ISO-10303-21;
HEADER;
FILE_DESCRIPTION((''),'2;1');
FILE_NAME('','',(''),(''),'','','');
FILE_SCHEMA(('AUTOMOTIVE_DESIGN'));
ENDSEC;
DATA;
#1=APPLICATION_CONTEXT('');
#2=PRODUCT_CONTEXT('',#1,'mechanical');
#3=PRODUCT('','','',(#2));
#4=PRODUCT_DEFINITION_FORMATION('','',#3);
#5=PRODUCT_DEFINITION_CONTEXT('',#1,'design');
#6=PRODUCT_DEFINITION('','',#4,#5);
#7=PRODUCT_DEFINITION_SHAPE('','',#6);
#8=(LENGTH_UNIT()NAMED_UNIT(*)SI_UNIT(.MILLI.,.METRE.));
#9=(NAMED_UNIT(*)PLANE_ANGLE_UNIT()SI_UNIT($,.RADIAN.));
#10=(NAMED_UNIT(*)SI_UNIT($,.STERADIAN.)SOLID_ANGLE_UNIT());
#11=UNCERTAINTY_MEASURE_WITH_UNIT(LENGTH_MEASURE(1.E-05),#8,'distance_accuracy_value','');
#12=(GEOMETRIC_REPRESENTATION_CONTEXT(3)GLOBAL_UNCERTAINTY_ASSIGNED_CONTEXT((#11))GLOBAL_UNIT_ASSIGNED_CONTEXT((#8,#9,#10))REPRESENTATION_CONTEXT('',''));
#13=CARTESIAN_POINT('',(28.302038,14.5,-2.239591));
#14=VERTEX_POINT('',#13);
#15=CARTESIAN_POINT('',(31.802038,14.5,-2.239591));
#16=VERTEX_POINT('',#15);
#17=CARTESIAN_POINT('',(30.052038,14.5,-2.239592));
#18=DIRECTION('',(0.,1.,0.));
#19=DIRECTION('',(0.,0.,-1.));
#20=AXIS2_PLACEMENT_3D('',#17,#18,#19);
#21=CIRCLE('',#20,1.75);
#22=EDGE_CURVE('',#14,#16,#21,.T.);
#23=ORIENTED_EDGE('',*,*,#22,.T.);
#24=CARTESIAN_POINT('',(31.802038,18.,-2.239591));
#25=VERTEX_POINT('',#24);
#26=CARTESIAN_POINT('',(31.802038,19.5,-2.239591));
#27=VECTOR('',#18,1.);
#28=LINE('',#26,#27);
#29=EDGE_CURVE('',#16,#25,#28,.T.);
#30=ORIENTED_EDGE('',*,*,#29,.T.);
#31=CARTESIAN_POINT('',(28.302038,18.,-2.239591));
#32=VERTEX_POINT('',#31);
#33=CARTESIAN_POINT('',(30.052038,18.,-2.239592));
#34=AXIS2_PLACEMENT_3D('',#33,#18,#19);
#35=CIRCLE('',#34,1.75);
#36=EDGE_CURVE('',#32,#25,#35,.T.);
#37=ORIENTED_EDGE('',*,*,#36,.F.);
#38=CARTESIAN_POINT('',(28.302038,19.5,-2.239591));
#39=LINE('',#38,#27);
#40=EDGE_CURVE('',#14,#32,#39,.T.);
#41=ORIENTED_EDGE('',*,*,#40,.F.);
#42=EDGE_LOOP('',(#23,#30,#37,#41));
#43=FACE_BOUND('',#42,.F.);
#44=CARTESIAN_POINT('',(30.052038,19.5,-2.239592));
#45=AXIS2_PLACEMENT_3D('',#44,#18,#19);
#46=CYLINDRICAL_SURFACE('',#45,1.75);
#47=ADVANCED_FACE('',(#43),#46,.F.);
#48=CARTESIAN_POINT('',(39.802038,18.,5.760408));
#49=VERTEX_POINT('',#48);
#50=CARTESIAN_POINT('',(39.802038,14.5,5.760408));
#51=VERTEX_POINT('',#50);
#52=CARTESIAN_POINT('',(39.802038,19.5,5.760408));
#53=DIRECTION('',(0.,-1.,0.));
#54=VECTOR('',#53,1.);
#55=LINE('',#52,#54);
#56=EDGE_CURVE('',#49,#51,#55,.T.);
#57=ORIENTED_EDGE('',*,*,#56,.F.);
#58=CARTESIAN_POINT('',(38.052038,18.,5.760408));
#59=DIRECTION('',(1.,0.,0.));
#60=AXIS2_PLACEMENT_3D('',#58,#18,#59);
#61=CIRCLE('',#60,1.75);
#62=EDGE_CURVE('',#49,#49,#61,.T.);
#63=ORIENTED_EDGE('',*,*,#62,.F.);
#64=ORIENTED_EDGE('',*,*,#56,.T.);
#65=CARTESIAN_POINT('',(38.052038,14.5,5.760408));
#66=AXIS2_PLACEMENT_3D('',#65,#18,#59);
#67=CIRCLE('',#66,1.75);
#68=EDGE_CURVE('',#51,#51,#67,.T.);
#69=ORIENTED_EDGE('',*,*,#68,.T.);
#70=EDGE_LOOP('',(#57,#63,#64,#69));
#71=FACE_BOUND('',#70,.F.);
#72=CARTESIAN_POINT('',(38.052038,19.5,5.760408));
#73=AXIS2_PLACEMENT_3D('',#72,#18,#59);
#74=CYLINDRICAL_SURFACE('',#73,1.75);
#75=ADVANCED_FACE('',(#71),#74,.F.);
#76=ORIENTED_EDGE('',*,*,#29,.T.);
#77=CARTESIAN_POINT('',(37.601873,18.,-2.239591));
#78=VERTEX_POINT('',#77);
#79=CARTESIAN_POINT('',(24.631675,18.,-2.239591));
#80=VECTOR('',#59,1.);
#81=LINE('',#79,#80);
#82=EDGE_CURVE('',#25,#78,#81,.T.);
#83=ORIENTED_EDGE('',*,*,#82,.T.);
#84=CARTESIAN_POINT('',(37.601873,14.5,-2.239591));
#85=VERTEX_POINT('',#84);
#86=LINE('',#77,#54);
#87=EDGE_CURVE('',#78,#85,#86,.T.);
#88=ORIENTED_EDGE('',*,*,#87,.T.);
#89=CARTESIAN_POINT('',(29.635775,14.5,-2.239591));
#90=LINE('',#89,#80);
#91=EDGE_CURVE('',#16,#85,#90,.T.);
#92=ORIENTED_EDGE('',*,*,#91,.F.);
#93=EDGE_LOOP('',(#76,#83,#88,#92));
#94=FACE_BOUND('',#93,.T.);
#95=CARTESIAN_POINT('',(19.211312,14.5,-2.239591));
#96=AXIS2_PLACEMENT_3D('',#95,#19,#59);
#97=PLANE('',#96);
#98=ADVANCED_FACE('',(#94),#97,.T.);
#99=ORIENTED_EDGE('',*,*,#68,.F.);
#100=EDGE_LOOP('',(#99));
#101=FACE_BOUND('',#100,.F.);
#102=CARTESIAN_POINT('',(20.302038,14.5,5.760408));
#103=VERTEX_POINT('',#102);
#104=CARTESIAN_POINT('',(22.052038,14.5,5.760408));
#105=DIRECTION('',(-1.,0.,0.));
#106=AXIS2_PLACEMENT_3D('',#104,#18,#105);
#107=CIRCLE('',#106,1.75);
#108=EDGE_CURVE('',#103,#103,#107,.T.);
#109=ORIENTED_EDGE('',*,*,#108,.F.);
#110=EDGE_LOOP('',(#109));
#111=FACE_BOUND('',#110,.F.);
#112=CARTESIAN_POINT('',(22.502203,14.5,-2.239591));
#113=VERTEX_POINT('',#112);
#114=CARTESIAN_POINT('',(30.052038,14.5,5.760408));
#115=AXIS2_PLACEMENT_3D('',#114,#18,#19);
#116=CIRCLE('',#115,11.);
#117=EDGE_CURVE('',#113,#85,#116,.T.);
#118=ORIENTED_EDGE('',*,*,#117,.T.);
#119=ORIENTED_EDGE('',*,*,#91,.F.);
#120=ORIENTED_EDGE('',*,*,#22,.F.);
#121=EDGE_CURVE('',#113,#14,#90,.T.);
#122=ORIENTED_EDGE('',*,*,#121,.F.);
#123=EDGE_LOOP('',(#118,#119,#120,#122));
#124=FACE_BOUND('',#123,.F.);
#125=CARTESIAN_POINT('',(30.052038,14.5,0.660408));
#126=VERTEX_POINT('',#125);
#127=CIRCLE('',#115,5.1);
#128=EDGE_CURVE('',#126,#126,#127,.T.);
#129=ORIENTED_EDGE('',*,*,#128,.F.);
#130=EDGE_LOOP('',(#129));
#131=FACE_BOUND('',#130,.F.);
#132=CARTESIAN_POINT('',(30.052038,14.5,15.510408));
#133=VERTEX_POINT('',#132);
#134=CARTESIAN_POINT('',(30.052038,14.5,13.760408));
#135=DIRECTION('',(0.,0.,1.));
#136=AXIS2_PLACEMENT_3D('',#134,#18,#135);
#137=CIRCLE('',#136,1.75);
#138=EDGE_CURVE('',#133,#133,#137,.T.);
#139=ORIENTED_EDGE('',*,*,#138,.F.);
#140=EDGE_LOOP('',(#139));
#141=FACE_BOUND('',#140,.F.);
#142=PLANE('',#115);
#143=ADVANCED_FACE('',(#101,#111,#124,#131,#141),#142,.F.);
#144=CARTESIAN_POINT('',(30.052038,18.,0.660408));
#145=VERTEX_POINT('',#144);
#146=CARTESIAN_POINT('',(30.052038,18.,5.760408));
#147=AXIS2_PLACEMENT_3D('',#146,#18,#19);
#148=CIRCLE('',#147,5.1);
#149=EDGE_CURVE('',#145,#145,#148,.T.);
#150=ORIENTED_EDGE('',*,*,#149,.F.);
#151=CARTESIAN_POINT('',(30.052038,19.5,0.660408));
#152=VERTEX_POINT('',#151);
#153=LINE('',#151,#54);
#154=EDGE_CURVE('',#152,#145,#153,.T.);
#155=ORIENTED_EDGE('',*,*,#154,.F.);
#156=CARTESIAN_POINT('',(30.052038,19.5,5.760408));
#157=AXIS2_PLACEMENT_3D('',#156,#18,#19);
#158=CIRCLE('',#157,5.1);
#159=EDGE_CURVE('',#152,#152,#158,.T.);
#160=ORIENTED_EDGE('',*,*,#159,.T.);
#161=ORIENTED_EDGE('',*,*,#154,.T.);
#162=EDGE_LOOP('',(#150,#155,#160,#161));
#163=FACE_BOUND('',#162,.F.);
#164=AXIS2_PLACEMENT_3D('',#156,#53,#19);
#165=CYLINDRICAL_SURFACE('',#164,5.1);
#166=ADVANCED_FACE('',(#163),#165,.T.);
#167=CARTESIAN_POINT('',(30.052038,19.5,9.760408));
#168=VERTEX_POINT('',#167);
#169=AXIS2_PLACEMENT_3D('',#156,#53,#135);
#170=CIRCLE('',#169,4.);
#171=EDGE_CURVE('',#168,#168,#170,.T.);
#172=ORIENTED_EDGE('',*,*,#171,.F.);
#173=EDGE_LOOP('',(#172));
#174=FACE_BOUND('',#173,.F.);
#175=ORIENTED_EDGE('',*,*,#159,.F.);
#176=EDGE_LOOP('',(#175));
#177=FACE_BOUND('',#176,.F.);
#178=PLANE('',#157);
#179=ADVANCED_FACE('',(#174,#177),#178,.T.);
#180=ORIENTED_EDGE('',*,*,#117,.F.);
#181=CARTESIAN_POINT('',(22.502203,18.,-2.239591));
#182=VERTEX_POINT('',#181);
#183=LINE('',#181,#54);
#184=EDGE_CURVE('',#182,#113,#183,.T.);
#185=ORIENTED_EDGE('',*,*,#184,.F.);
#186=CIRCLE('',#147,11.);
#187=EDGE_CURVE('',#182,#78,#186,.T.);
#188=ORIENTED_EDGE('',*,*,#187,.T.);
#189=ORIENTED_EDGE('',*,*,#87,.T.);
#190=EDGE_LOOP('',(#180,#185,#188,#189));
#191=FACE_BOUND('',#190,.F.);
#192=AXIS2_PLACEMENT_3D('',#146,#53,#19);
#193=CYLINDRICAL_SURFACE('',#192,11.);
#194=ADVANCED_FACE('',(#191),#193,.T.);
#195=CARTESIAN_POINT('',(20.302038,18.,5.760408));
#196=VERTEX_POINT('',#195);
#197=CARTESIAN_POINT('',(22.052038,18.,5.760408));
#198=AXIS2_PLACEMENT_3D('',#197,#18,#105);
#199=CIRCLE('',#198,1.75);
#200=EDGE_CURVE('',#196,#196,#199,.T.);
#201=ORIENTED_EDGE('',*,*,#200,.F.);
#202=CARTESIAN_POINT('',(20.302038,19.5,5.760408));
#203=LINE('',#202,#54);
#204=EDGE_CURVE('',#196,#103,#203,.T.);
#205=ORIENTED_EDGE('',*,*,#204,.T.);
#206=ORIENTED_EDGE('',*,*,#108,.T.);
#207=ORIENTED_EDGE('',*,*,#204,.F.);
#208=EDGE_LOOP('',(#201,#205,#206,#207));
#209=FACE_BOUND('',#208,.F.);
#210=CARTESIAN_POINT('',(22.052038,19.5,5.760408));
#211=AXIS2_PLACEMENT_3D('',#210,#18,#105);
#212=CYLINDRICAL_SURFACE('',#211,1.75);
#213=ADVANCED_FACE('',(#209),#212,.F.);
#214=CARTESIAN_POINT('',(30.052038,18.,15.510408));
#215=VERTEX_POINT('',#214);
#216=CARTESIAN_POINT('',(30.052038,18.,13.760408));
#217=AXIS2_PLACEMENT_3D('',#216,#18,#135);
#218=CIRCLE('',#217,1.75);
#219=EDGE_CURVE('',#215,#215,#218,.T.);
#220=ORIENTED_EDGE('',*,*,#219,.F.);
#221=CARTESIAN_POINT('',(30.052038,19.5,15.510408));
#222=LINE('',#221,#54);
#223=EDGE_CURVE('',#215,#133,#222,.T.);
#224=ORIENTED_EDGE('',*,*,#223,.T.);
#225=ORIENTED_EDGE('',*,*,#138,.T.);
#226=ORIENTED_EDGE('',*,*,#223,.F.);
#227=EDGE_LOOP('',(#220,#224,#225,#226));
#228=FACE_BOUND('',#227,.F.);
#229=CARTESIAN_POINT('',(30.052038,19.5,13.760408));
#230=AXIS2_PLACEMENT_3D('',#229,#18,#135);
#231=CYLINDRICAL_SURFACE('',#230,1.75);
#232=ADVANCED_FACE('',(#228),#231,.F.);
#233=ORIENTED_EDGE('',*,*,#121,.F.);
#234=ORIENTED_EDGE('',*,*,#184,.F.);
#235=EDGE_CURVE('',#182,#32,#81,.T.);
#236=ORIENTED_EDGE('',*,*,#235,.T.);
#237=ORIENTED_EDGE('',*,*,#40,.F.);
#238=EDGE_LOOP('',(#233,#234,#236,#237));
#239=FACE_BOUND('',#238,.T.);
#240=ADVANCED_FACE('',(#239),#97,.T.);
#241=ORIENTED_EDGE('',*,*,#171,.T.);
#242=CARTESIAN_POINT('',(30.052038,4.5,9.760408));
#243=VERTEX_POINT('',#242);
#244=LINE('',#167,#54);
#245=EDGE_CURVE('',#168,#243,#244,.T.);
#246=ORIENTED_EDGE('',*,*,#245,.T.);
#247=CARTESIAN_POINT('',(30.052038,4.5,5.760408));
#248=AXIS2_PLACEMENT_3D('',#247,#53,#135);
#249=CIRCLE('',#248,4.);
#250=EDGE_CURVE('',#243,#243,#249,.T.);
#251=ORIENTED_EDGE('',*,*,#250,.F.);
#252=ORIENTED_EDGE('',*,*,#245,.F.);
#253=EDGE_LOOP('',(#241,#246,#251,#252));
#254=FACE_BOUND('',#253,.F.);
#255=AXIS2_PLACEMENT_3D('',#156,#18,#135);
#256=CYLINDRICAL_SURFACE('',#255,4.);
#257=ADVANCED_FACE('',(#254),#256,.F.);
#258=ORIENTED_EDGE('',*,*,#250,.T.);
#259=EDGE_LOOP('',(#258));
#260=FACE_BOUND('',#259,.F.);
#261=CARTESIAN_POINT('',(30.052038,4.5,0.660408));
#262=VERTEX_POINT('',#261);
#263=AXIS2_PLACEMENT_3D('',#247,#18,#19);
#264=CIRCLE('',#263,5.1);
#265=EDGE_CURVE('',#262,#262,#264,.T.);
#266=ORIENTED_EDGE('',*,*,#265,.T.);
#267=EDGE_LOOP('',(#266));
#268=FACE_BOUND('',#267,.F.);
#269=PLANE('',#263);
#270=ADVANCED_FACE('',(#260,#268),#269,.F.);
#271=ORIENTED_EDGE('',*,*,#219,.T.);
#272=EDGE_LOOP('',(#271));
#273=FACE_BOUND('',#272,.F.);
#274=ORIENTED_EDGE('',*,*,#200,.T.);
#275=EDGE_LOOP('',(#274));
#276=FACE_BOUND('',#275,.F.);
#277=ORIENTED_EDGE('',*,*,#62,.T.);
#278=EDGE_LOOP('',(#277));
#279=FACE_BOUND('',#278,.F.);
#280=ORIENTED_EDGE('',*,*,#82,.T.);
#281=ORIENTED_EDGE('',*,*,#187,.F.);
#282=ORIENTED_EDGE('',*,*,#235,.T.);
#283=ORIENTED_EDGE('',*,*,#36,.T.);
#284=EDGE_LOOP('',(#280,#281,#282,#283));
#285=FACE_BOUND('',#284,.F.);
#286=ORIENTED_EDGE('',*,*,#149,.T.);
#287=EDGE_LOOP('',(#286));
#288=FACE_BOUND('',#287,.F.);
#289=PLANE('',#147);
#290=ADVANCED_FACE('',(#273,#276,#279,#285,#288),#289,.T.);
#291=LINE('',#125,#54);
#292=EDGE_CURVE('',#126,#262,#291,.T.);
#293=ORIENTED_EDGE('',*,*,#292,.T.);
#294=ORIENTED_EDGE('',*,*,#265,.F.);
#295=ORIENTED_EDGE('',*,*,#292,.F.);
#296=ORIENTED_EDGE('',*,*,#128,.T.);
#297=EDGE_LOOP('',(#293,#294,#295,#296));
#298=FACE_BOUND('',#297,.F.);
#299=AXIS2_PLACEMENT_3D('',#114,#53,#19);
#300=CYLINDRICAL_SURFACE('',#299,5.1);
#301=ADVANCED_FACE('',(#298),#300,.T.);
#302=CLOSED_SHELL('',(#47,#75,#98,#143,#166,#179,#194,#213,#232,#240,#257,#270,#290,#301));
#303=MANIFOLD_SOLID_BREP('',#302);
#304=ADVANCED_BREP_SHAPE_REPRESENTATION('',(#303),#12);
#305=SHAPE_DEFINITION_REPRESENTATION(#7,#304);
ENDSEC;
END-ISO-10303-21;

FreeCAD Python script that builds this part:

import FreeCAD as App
import Part
import Sketcher

V = App.Vector

doc = App.newDocument("Part")
body = doc.addObject("PartDesign::Body", "Body")

sketch1 = body.newObject("Sketcher::SketchObject", "Sketch")
sketch1.AttachmentSupport = (doc.getObject("YZ_Plane"), [""])
sketch1.MapMode = "FlatFace"
sketch1.addGeometry(Part.LineSegment(V(0, 15, 0), V(0, 0, 0)), False)
sketch1.addGeometry(Part.LineSegment(V(0, 0, 0), V(5.1, 0, 0)), False)
sketch1.addGeometry(Part.LineSegment(V(5.1, 0, 0), V(5.1, 10, 0)), False)
sketch1.addGeometry(Part.LineSegment(V(5.1, 10, 0), V(11, 10, 0)), False)
sketch1.addGeometry(Part.LineSegment(V(11, 10, 0), V(11, 13.5, 0)), False)
sketch1.addGeometry(Part.LineSegment(V(11, 13.5, 0), V(5.1, 13.5, 0)), False)
sketch1.addGeometry(Part.LineSegment(V(5.1, 13.5, 0), V(5.1, 15, 0)), False)
sketch1.addGeometry(Part.LineSegment(V(5.1, 15, 0), V(0, 15, 0)), False)
sketch1.addConstraint(Sketcher.Constraint("Coincident", 0, 2, 1, 1))
sketch1.addConstraint(Sketcher.Constraint("Coincident", 1, 2, 2, 1))
sketch1.addConstraint(Sketcher.Constraint("Coincident", 2, 2, 3, 1))
sketch1.addConstraint(Sketcher.Constraint("Coincident", 3, 2, 4, 1))
sketch1.addConstraint(Sketcher.Constraint("Coincident", 4, 2, 5, 1))
sketch1.addConstraint(Sketcher.Constraint("Coincident", 5, 2, 6, 1))
sketch1.addConstraint(Sketcher.Constraint("Coincident", 6, 2, 7, 1))
sketch1.addConstraint(Sketcher.Constraint("Coincident", 7, 2, 0, 1))
sketch1.addConstraint(Sketcher.Constraint("Vertical", 0))
sketch1.addConstraint(Sketcher.Constraint("Horizontal", 1))
sketch1.addConstraint(Sketcher.Constraint("Vertical", 2))
sketch1.addConstraint(Sketcher.Constraint("Horizontal", 3))
sketch1.addConstraint(Sketcher.Constraint("Vertical", 4))
sketch1.addConstraint(Sketcher.Constraint("Horizontal", 5))
sketch1.addConstraint(Sketcher.Constraint("Vertical", 6))
sketch1.addConstraint(Sketcher.Constraint("Horizontal", 7))
sketch1.addConstraint(Sketcher.Constraint("Coincident", 0, 2, -1, 1))
sketch1.addConstraint(Sketcher.Constraint("Vertical", 2, 2, 5, 2))
sketch1.addConstraint(Sketcher.Constraint("DistanceY", 0, 2, 0, 1, 15.0))
sketch1.addConstraint(Sketcher.Constraint("DistanceY", 2, 1, 2, 2, 10.0))
sketch1.addConstraint(Sketcher.Constraint("DistanceX", 1, 1, 1, 2, 5.1))
sketch1.addConstraint(Sketcher.Constraint("DistanceX", 3, 1, 3, 2, 5.9))
sketch1.addConstraint(Sketcher.Constraint("DistanceY", 4, 1, 4, 2, 3.5))
revolution = body.newObject("PartDesign::Revolution", "Revolution")
revolution.Profile = sketch1
revolution.ReferenceAxis = (sketch1, ["V_Axis"])
revolution.Angle = 360

sketch2 = body.newObject("Sketcher::SketchObject", "Sketch001")
sketch2.AttachmentSupport = (doc.getObject("XY_Plane"), [""])
sketch2.MapMode = "FlatFace"
sketch2.AttachmentOffset = App.Placement(V(0, 0, 15), App.Rotation())
sketch2.addGeometry(Part.Circle(V(0, 0, 0), V(0, 0, 1), 4), False)
sketch2.addGeometry(Part.Circle(V(0, -8, 0), V(0, 0, 1), 1.75), False)
sketch2.addConstraint(Sketcher.Constraint("Coincident", 0, 3, -1, 1))
sketch2.addConstraint(Sketcher.Constraint("PointOnObject", 1, 3, -2))
sketch2.addConstraint(Sketcher.Constraint("Diameter", 0, 8.0))
sketch2.addConstraint(Sketcher.Constraint("Diameter", 1, 3.5))
sketch2.addConstraint(Sketcher.Constraint("DistanceY", 1, 3, -1, 1, 8.0))
pocket1 = body.newObject("PartDesign::Pocket", "Pocket")
pocket1.Profile = sketch2
pocket1.Type = "ThroughAll"
doc.recompute()

polarpattern = body.newObject("PartDesign::PolarPattern", "PolarPattern")
polarpattern.Originals = [pocket1]
polarpattern.Axis = (doc.getObject("Z_Axis"), [""])
polarpattern.Angle = 360
polarpattern.Occurrences = 4
body.Tip = polarpattern

sketch3 = body.newObject("Sketcher::SketchObject", "Sketch002")
sketch3.AttachmentSupport = (doc.getObject("XY_Plane"), [""])
sketch3.MapMode = "FlatFace"
sketch3.AttachmentOffset = App.Placement(V(0, 0, 10), App.Rotation())
sketch3.addGeometry(Part.LineSegment(V(-10.840727, 8, 0), V(-10.840727, 19.039979, 0)), False)
sketch3.addGeometry(Part.LineSegment(V(-10.840727, 19.039979, 0), V(10.0082, 19.039979, 0)), False)
sketch3.addGeometry(Part.LineSegment(V(10.0082, 19.039979, 0), V(10.0082, 8, 0)), False)
sketch3.addGeometry(Part.LineSegment(V(10.0082, 8, 0), V(-10.840727, 8, 0)), False)
sketch3.addConstraint(Sketcher.Constraint("Coincident", 0, 2, 1, 1))
sketch3.addConstraint(Sketcher.Constraint("Coincident", 1, 2, 2, 1))
sketch3.addConstraint(Sketcher.Constraint("Coincident", 2, 2, 3, 1))
sketch3.addConstraint(Sketcher.Constraint("Coincident", 3, 2, 0, 1))
sketch3.addConstraint(Sketcher.Constraint("Vertical", 0))
sketch3.addConstraint(Sketcher.Constraint("Horizontal", 1))
sketch3.addConstraint(Sketcher.Constraint("Vertical", 2))
sketch3.addConstraint(Sketcher.Constraint("Horizontal", 3))
sketch3.addConstraint(Sketcher.Constraint("DistanceY", -1, 1, 2, 2, 8.0))
sketch3.addConstraint(Sketcher.Constraint("DistanceY", 0, 1, 0, 2, 11.039979))
sketch3.addConstraint(Sketcher.Constraint("DistanceX", -1, 1, 1, 2, 10.0082))
sketch3.addConstraint(Sketcher.Constraint("DistanceX", 1, 1, 1, 2, 20.848927))
pocket2 = body.newObject("PartDesign::Pocket", "Pocket001")
pocket2.Profile = sketch3
pocket2.Type = "ThroughAll"
pocket2.Reversed = True
body2 = doc.addObject("PartDesign::Body", "Body001")
doc.recompute()

body.Placement = App.Placement(V(30.052038, 4.5, 5.760408), App.Rotation(V(1, 0, 0), 270))
boolean = body2.newObject("PartDesign::Boolean", "Boolean")
boolean.Type = "Fuse"
boolean.addObjects([body])

doc.recompute()
